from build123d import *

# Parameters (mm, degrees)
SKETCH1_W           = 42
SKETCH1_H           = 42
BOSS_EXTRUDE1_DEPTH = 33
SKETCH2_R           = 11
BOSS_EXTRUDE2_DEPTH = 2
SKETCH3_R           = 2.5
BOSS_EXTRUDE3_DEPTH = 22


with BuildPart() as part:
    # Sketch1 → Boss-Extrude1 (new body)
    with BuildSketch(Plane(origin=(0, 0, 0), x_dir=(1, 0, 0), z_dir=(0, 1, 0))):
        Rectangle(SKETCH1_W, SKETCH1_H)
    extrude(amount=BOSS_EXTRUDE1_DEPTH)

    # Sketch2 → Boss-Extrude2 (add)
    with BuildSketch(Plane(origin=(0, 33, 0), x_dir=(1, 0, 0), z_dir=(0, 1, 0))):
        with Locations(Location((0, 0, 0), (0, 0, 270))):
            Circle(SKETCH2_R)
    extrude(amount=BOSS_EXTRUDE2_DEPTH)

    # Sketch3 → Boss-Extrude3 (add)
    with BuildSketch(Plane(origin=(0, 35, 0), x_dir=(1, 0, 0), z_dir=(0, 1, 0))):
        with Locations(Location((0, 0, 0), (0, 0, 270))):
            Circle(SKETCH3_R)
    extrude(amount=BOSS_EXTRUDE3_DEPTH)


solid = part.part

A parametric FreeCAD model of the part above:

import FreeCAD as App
import Part
import Sketcher

doc = App.newDocument("Part")
body = doc.addObject("PartDesign::Body", "Body")

sketch1 = doc.addObject("Sketcher::SketchObject", "Sketch")
body.addObject(sketch1)
sketch1.AttachmentSupport = (doc.XZ_Plane, [""])
sketch1.MapMode = "FlatFace"
sketch1.addGeometry([
    Part.LineSegment(App.Vector(-21, -21, 0), App.Vector(-21, 21, 0)),
    Part.LineSegment(App.Vector(-21, 21, 0), App.Vector(21, 21, 0)),
    Part.LineSegment(App.Vector(21, 21, 0), App.Vector(21, -21, 0)),
    Part.LineSegment(App.Vector(21, -21, 0), App.Vector(-21, -21, 0)),
], False)
sketch1.addConstraint([
    Sketcher.Constraint("Coincident", 0, 2, 1, 1),
    Sketcher.Constraint("Coincident", 1, 2, 2, 1),
    Sketcher.Constraint("Coincident", 2, 2, 3, 1),
    Sketcher.Constraint("Coincident", 3, 2, 0, 1),
    Sketcher.Constraint("Vertical", 0),
    Sketcher.Constraint("Horizontal", 1),
    Sketcher.Constraint("Vertical", 2),
    Sketcher.Constraint("Horizontal", 3),
    Sketcher.Constraint("Symmetric", 0, 2, 2, 2, -1, 1),
    Sketcher.Constraint("Equal", 3, 0),
    Sketcher.Constraint("DistanceX", 1, 1, 1, 2, 42.0),
])
pad1 = doc.addObject("PartDesign::Pad", "Pad")
body.addObject(pad1)
pad1.Profile = sketch1
pad1.Length = 33
pad1.Reversed = True

sketch2 = doc.addObject("Sketcher::SketchObject", "Sketch001")
body.addObject(sketch2)
sketch2.AttachmentSupport = (doc.XZ_Plane, [""])
sketch2.MapMode = "FlatFace"
sketch2.AttachmentOffset = App.Placement(App.Vector(0, 0, -33), App.Rotation())
sketch2.addGeometry(Part.Circle(App.Vector(0, 0, 0), App.Vector(0, 0, 1), 11), False)
sketch2.addConstraint([
    Sketcher.Constraint("Coincident", 0, 3, -1, 1),
    Sketcher.Constraint("Diameter", 0, 22.0),
])
pad2 = doc.addObject("PartDesign::Pad", "Pad001")
body.addObject(pad2)
pad2.Profile = sketch2
pad2.Length = 2
pad2.Reversed = True

sketch3 = doc.addObject("Sketcher::SketchObject", "Sketch002")
body.addObject(sketch3)
sketch3.AttachmentSupport = (doc.XZ_Plane, [""])
sketch3.MapMode = "FlatFace"
sketch3.AttachmentOffset = App.Placement(App.Vector(0, 0, -35), App.Rotation())
sketch3.addGeometry(Part.Circle(App.Vector(0, 0, 0), App.Vector(0, 0, 1), 2.5), False)
sketch3.addConstraint([
    Sketcher.Constraint("Coincident", 0, 3, -1, 1),
    Sketcher.Constraint("Diameter", 0, 5.0),
])
pad3 = doc.addObject("PartDesign::Pad", "Pad002")
body.addObject(pad3)
pad3.Profile = sketch3
pad3.Length = 22
pad3.Reversed = True

doc.recompute()
